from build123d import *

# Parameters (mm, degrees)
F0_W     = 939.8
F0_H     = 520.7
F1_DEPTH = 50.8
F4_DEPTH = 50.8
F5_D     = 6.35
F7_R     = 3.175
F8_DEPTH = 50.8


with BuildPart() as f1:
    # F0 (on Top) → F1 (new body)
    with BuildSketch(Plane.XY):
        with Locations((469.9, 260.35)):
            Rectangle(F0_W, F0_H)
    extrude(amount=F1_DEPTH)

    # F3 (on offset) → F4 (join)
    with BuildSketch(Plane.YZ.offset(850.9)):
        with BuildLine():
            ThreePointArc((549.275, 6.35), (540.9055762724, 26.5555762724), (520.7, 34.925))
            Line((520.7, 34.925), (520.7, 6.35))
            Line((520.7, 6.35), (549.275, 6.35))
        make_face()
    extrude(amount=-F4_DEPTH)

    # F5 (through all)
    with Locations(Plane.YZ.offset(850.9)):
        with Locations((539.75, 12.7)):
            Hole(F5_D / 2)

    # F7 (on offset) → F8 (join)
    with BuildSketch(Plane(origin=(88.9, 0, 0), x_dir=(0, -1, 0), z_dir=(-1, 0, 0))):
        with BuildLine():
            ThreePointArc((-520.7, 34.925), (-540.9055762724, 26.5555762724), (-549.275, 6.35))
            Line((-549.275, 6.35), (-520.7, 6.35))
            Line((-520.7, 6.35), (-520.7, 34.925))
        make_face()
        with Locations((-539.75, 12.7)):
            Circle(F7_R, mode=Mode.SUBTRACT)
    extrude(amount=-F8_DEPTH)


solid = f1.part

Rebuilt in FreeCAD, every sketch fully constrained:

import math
import FreeCAD as App
import Part
import Sketcher

V = App.Vector
Q = App.Units.Quantity


def add_polygon(sketch, points):
    """Adds a closed chain of lines whose ends are joined by coincident constraints."""
    first, n = sketch.GeometryCount, len(points)
    for a, b in zip(points, points[1:] + points[:1]):
        sketch.addGeometry(Part.LineSegment(App.Vector(*a, 0), App.Vector(*b, 0)), False)
    for i in range(n):
        sketch.addConstraint(Sketcher.Constraint("Coincident", first + i, 2, first + (i + 1) % n, 1))

doc = App.newDocument("Part")
body = doc.addObject("PartDesign::Body", "Body")

sketch1 = body.newObject("Sketcher::SketchObject", "Sketch")
sketch1.AttachmentSupport = (doc.getObject("XY_Plane"), [""])
sketch1.MapMode = "FlatFace"
add_polygon(sketch1, [(0, 520.7), (0, 0), (939.8, 0), (939.8, 520.7)])
sketch1.addConstraint(Sketcher.Constraint("Vertical", 0))
sketch1.addConstraint(Sketcher.Constraint("Horizontal", 1))
sketch1.addConstraint(Sketcher.Constraint("Vertical", 2))
sketch1.addConstraint(Sketcher.Constraint("Horizontal", 3))
sketch1.addConstraint(Sketcher.Constraint("Coincident", 0, 2, -1, 1))
sketch1.addConstraint(Sketcher.Constraint("DistanceX", 1, 1, 1, 2, Q("37 in")))
sketch1.addConstraint(Sketcher.Constraint("DistanceY", 0, 2, 0, 1, Q("20.5 in")))
pad1 = body.newObject("PartDesign::Pad", "Pad")
pad1.Profile = sketch1
pad1.Length = Q("2 in")

sketch2 = body.newObject("Sketcher::SketchObject", "Sketch001")
sketch2.AttachmentSupport = (doc.getObject("YZ_Plane"), [""])
sketch2.MapMode = "FlatFace"
sketch2.AttachmentOffset = App.Placement(V(0, 0, 33.5 * 25.4), App.Rotation())
sketch2.addGeometry(Part.ArcOfCircle(Part.Circle(V(520.7, 6.35, 0), V(0, 0, 1), 28.575), math.radians(0), math.radians(90)), False)
sketch2.addGeometry(Part.LineSegment(V(520.7, 34.925, 0), V(520.7, 6.35, 0)), False)
sketch2.addGeometry(Part.LineSegment(V(520.7, 6.35, 0), V(549.275, 6.35, 0)), False)
sketch2.addConstraint(Sketcher.Constraint("Coincident", 0, 2, 1, 1))
sketch2.addConstraint(Sketcher.Constraint("Coincident", 1, 2, 2, 1))
sketch2.addConstraint(Sketcher.Constraint("Coincident", 2, 2, 0, 1))
sketch2.addConstraint(Sketcher.Constraint("Vertical", 1))
sketch2.addConstraint(Sketcher.Constraint("Horizontal", 2))
sketch2.addConstraint(Sketcher.Constraint("Coincident", 1, 2, 0, 3))
sketch2.addConstraint(Sketcher.Constraint("Radius", 0, Q("1.125 in")))
sketch2.addConstraint(Sketcher.Constraint("DistanceX", -1, 1, 0, 3, Q("20.5 in")))
sketch2.addConstraint(Sketcher.Constraint("DistanceY", -1, 1, 0, 3, Q("0.25 in")))
pad2 = body.newObject("PartDesign::Pad", "Pad001")
pad2.Profile = sketch2
pad2.Length = Q("2 in")
pad2.Reversed = True

sketch3 = body.newObject("Sketcher::SketchObject", "Sketch002")
sketch3.AttachmentSupport = (doc.getObject("YZ_Plane"), [""])
sketch3.MapMode = "FlatFace"
sketch3.AttachmentOffset = App.Placement(V(0, 0, 33.5 * 25.4), App.Rotation())
sketch3.addGeometry(Part.Circle(V(539.75, 12.7, 0), V(0, 0, 1), 3.175), False)
sketch3.addConstraint(Sketcher.Constraint("Diameter", 0, Q("0.25 in")))
sketch3.addConstraint(Sketcher.Constraint("DistanceY", -1, 1, 0, 3, Q("0.5 in")))
sketch3.addConstraint(Sketcher.Constraint("DistanceX", -1, 1, 0, 3, Q("21.25 in")))
doc.recompute()
hole = body.newObject("PartDesign::Hole", "Hole")
hole.Profile = sketch3
hole.ThreadType = "None"
hole.Diameter = Q("0.25 in")
hole.DepthType = "ThroughAll"

sketch4 = body.newObject("Sketcher::SketchObject", "Sketch003")
sketch4.AttachmentSupport = (doc.getObject("YZ_Plane"), [""])
sketch4.MapMode = "FlatFace"
sketch4.AttachmentOffset = App.Placement(V(0, 0, 3.5 * 25.4), App.Rotation())
sketch4.addGeometry(Part.ArcOfCircle(Part.Circle(V(520.7, 6.35, 0), V(0, 0, 1), 28.575), math.radians(0), math.radians(90)), False)
sketch4.addGeometry(Part.LineSegment(V(549.275, 6.35, 0), V(520.7, 6.35, 0)), False)
sketch4.addGeometry(Part.LineSegment(V(520.7, 6.35, 0), V(520.7, 34.925, 0)), False)
sketch4.addGeometry(Part.Circle(V(539.75, 12.7, 0), V(0, 0, 1), 3.175), False)
sketch4.addConstraint(Sketcher.Constraint("Coincident", 0, 1, 1, 1))
sketch4.addConstraint(Sketcher.Constraint("Coincident", 1, 2, 2, 1))
sketch4.addConstraint(Sketcher.Constraint("Coincident", 2, 2, 0, 2))
sketch4.addConstraint(Sketcher.Constraint("Horizontal", 1))
sketch4.addConstraint(Sketcher.Constraint("Vertical", 2))
sketch4.addConstraint(Sketcher.Constraint("Coincident", 1, 2, 0, 3))
sketch4.addConstraint(Sketcher.Constraint("Diameter", 3, Q("0.25 in")))
sketch4.addConstraint(Sketcher.Constraint("Radius", 0, Q("1.125 in")))
sketch4.addConstraint(Sketcher.Constraint("DistanceX", -1, 1, 0, 3, Q("20.5 in")))
sketch4.addConstraint(Sketcher.Constraint("DistanceY", -1, 1, 3, 3, Q("0.5 in")))
sketch4.addConstraint(Sketcher.Constraint("DistanceY", -1, 1, 0, 3, Q("0.25 in")))
sketch4.addConstraint(Sketcher.Constraint("DistanceX", -1, 1, 3, 3, Q("21.25 in")))
pad3 = body.newObject("PartDesign::Pad", "Pad002")
pad3.Profile = sketch4
pad3.Length = Q("2 in")

doc.recompute()
